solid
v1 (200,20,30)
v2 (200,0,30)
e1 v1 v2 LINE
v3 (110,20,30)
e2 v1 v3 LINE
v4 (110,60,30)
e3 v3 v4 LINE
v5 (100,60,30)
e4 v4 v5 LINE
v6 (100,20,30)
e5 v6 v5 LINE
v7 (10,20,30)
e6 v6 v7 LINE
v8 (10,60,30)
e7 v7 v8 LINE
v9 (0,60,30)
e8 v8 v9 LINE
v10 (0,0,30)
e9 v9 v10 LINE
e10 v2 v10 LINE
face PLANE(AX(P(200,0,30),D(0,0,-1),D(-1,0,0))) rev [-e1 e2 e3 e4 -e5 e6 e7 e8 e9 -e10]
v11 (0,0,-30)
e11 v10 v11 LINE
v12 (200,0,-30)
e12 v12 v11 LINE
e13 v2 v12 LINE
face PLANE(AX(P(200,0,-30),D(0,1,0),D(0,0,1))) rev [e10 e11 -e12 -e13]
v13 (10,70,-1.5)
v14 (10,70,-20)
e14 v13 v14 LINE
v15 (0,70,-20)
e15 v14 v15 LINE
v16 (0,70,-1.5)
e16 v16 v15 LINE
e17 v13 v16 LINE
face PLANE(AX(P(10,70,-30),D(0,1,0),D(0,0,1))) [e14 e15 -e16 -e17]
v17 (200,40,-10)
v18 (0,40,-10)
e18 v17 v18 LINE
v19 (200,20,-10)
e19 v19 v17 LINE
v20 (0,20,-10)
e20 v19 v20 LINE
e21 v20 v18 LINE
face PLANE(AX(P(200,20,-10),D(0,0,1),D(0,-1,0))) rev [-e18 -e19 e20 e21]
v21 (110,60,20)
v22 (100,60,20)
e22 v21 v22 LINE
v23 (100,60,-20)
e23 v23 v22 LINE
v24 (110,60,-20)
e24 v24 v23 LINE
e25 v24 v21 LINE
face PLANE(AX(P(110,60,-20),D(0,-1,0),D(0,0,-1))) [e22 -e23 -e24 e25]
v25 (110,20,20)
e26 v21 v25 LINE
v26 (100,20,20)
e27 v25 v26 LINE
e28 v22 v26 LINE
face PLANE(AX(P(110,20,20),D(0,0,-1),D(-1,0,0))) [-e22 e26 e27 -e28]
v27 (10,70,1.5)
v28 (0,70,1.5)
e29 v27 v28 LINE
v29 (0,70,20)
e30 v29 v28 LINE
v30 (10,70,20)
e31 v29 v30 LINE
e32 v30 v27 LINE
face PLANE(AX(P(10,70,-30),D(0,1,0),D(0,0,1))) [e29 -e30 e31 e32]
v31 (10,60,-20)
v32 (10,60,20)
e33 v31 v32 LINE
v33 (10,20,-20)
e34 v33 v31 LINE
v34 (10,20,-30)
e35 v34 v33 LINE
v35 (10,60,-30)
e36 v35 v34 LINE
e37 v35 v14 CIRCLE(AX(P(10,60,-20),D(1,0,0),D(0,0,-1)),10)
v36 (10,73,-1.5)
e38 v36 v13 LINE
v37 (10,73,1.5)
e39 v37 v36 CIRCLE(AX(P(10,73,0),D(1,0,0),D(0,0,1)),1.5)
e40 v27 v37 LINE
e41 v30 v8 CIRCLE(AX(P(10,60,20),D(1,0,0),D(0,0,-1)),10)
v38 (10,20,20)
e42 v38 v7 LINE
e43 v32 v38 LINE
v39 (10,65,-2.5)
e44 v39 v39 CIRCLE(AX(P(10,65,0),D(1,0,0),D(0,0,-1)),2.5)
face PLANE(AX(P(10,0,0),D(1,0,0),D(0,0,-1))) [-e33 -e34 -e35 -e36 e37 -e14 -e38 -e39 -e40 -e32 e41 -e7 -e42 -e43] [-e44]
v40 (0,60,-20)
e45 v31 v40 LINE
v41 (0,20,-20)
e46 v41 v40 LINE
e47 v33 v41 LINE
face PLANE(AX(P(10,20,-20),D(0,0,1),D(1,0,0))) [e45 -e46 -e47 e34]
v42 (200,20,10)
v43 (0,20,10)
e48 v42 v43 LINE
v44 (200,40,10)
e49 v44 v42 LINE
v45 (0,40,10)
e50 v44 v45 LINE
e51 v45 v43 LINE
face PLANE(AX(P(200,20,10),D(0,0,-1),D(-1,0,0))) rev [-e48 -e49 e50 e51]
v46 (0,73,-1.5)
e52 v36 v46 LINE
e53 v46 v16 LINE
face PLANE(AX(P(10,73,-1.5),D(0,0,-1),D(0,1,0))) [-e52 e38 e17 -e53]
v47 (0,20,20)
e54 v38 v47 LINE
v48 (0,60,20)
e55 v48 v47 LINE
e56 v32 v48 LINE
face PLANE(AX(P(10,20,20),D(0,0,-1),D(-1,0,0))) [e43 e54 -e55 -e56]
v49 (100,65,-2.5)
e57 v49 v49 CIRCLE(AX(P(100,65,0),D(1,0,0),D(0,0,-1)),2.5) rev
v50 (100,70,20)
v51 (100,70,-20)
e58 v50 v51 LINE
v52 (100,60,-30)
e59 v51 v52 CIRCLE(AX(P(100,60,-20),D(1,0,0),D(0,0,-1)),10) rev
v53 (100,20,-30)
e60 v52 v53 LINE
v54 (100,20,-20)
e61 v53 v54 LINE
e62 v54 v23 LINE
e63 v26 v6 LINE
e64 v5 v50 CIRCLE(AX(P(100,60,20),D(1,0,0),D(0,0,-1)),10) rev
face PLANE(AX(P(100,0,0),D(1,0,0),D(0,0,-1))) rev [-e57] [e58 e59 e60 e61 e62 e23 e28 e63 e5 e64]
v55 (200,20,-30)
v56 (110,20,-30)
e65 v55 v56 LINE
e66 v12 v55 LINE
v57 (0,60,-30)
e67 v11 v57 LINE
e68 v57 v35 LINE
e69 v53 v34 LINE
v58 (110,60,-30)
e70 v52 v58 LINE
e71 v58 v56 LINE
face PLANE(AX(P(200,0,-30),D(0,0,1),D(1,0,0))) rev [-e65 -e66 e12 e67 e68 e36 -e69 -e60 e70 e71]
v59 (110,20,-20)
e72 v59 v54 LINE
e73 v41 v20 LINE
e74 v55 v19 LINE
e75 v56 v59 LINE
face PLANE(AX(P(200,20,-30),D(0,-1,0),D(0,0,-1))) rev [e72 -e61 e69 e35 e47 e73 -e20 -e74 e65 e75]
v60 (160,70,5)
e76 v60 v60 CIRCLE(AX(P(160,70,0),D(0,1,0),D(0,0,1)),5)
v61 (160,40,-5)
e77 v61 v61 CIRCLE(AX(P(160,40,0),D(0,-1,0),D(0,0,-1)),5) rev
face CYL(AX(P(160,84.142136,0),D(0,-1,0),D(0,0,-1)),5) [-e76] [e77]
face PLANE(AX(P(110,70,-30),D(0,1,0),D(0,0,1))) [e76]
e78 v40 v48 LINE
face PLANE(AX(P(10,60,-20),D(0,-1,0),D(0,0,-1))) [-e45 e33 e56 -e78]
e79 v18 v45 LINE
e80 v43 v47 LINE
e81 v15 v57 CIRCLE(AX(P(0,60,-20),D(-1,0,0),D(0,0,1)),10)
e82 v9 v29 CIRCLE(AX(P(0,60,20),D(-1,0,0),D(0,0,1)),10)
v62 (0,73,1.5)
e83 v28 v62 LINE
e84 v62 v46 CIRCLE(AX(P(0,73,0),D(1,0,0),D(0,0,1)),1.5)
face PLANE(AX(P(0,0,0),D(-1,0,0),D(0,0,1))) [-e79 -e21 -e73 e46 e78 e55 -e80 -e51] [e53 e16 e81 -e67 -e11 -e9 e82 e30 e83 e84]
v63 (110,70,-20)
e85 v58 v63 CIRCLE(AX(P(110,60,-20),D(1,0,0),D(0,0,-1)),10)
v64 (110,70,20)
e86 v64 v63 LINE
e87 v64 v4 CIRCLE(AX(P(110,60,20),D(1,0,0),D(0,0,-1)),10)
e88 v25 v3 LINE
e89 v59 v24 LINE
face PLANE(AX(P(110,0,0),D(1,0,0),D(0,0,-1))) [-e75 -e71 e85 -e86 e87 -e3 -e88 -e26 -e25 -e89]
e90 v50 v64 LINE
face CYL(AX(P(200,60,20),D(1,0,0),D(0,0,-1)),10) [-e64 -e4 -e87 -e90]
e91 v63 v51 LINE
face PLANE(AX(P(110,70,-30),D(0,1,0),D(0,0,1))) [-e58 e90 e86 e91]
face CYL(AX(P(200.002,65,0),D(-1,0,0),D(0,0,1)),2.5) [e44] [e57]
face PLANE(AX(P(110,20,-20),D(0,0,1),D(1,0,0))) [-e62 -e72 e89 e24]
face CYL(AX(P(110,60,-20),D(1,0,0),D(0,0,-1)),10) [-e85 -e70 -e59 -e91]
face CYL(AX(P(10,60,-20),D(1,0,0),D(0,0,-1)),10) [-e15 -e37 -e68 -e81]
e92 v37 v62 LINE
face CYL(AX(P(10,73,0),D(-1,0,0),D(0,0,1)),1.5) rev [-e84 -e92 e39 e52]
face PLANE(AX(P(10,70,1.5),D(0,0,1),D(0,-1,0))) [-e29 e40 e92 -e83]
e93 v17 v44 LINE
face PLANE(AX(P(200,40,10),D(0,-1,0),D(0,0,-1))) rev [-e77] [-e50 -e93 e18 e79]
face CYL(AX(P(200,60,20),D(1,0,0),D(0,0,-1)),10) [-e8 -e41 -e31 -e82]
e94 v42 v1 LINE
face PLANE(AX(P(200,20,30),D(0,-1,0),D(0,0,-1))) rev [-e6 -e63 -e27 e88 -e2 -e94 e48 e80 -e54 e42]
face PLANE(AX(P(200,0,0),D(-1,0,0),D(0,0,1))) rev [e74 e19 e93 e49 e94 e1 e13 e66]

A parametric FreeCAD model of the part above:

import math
import FreeCAD as App
import Part
import Sketcher
Q = App.Units.Quantity


def edges_at(feature, points):
    """Names of the edges that pass closest to the given points."""
    edges = feature.Shape.Edges
    near = lambda p: min(range(len(edges)), key=lambda i: edges[i].distToShape(Part.Vertex(*p))[0])
    return sorted({f"Edge{near(p) + 1}" for p in points})


def add_polygon(sketch, points):
    """Adds a closed chain of lines whose ends are joined by coincident constraints."""
    first, n = sketch.GeometryCount, len(points)
    for a, b in zip(points, points[1:] + points[:1]):
        sketch.addGeometry(Part.LineSegment(App.Vector(*a, 0), App.Vector(*b, 0)), False)
    for i in range(n):
        sketch.addConstraint(Sketcher.Constraint("Coincident", first + i, 2, first + (i + 1) % n, 1))

doc = App.newDocument("Part")
params = doc.addObject("Spreadsheet::Sheet", "Params")
for row, (alias, value) in enumerate([
    ("sketch1_width", "20 mm"),
    ("pad1_length", "200 mm"),
    ("sketch2_width", "40 mm"),
    ("sketch2_width2", "50 mm"),
    ("sketch2_height", "10 mm"),
    ("pad2_length", "10 mm"),
    ("sketch3_width", "50 mm"),
    ("sketch3_width2", "40 mm"),
    ("sketch3_height", "10 mm"),
    ("pad3_length", "10 mm"),
    ("fillet_radius", "10 mm"),
    ("sketch4_diameter", "5 mm"),
    ("sketch5_diameter", "10 mm"),
    ("pad5_length", "30 mm"),
    ("sketch6_radius", "1.5 mm"),
    ("pad6_length", "10 mm"),
], start=1):
    params.set(f"A{row}", alias)
    params.set(f"B{row}", "=" + value)
    params.setAlias(f"B{row}", alias)

body = doc.addObject("PartDesign::Body", "Body")

# Sketch on YZ plane
sketch1 = body.newObject("Sketcher::SketchObject", "Sketch")
sketch1.AttachmentSupport = (doc.getObject("YZ_Plane"), [""])
sketch1.MapMode = "FlatFace"
add_polygon(sketch1, [(0, 30), (0, -30), (20, -30), (20, -10), (40, -10), (40, 10), (20, 10), (20, 30)])  # lines 0-7
sketch1.addConstraint(Sketcher.Constraint("Vertical", 0))
sketch1.addConstraint(Sketcher.Constraint("Horizontal", 1))
sketch1.addConstraint(Sketcher.Constraint("Vertical", 2))
sketch1.addConstraint(Sketcher.Constraint("Horizontal", 3))
sketch1.addConstraint(Sketcher.Constraint("Vertical", 4))
sketch1.addConstraint(Sketcher.Constraint("Horizontal", 5))
sketch1.addConstraint(Sketcher.Constraint("Vertical", 6))
sketch1.addConstraint(Sketcher.Constraint("Horizontal", 7))
sketch1.addConstraint(Sketcher.Constraint("Symmetric", 0, 2, 7, 2, -1, 1))
sketch1.addConstraint(Sketcher.Constraint("Symmetric", 2, 2, 5, 2, -1))
sketch1.addConstraint(Sketcher.Constraint("Equal", 1, 3))
sketch1.addConstraint(Sketcher.Constraint("Equal", 7, 2))
sketch1.addConstraint(Sketcher.Constraint("Equal", 2, 4))
sketch1.addConstraint(Sketcher.Constraint("DistanceX", 1, 1, 1, 2, Q("20 mm")))
sketch1.setExpression("Constraints[21]", "Params.sketch1_width")
pad1 = body.newObject("PartDesign::Pad", "Pad")
pad1.Profile = sketch1
pad1.setExpression("Length", "Params.pad1_length")

# Sketch on YZ plane
sketch2 = body.newObject("Sketcher::SketchObject", "Sketch001")
sketch2.AttachmentSupport = (doc.getObject("YZ_Plane"), [""])
sketch2.MapMode = "FlatFace"
add_polygon(sketch2, [(20, -30), (20, -20), (60, -20), (60, 20), (20, 20), (20, 30), (70, 30), (70, -30)])  # lines 0-7
sketch2.addConstraint(Sketcher.Constraint("Vertical", 0))
sketch2.addConstraint(Sketcher.Constraint("Horizontal", 1))
sketch2.addConstraint(Sketcher.Constraint("Vertical", 2))
sketch2.addConstraint(Sketcher.Constraint("Horizontal", 3))
sketch2.addConstraint(Sketcher.Constraint("Vertical", 4))
sketch2.addConstraint(Sketcher.Constraint("Horizontal", 5))
sketch2.addConstraint(Sketcher.Constraint("Vertical", 6))
sketch2.addConstraint(Sketcher.Constraint("Horizontal", 7))
sketch2.addConstraint(Sketcher.Constraint("Symmetric", 0, 2, 3, 2, -1))
sketch2.addConstraint(Sketcher.Constraint("Equal", 3, 2))
sketch2.addConstraint(Sketcher.Constraint("Equal", 0, 4))
sketch2.addConstraint(Sketcher.Constraint("DistanceX", 1, 1, 1, 2, Q("40 mm")))
sketch2.addConstraint(Sketcher.Constraint("DistanceX", 5, 1, 5, 2, Q("50 mm")))
sketch2.addConstraint(Sketcher.Constraint("DistanceY", 0, 1, 0, 2, Q("10 mm")))
sketch2.addConstraint(Sketcher.Constraint("DistanceX", -1, 1, 0, 2, Q("20 mm")))
sketch2.setExpression("Constraints[19]", "Params.sketch2_width")
sketch2.setExpression("Constraints[20]", "Params.sketch2_width2")
sketch2.setExpression("Constraints[21]", "Params.sketch2_height")
pad2 = body.newObject("PartDesign::Pad", "Pad001")
pad2.Profile = sketch2
pad2.setExpression("Length", "Params.pad2_length")

# Sketch on YZ plane
sketch3 = body.newObject("Sketcher::SketchObject", "Sketch002")
sketch3.AttachmentSupport = (doc.getObject("YZ_Plane"), [""])
sketch3.MapMode = "FlatFace"
sketch3.AttachmentOffset = App.Placement(App.Vector(0, 0, 100), App.Rotation())
add_polygon(sketch3, [(20, 20), (20, 30), (70, 30), (70, -30), (20, -30), (20, -20), (60, -20), (60, 20)])  # lines 0-7
sketch3.addConstraint(Sketcher.Constraint("Vertical", 0))
sketch3.addConstraint(Sketcher.Constraint("Horizontal", 1))
sketch3.addConstraint(Sketcher.Constraint("Vertical", 2))
sketch3.addConstraint(Sketcher.Constraint("Horizontal", 3))
sketch3.addConstraint(Sketcher.Constraint("Vertical", 4))
sketch3.addConstraint(Sketcher.Constraint("Horizontal", 5))
sketch3.addConstraint(Sketcher.Constraint("Vertical", 6))
sketch3.addConstraint(Sketcher.Constraint("Horizontal", 7))
sketch3.addConstraint(Sketcher.Constraint("Symmetric", 0, 2, 3, 2, -1))
sketch3.addConstraint(Sketcher.Constraint("Equal", 0, 4))
sketch3.addConstraint(Sketcher.Constraint("Equal", 7, 6))
sketch3.addConstraint(Sketcher.Constraint("DistanceX", 1, 1, 1, 2, Q("50 mm")))
sketch3.addConstraint(Sketcher.Constraint("DistanceX", 5, 1, 5, 2, Q("40 mm")))
sketch3.addConstraint(Sketcher.Constraint("DistanceY", 0, 1, 0, 2, Q("10 mm")))
sketch3.addConstraint(Sketcher.Constraint("DistanceX", -1, 1, 0, 2, Q("20 mm")))
sketch3.setExpression("Constraints[19]", "Params.sketch3_width")
sketch3.setExpression("Constraints[20]", "Params.sketch3_width2")
sketch3.setExpression("Constraints[21]", "Params.sketch3_height")
pad3 = body.newObject("PartDesign::Pad", "Pad002")
pad3.Profile = sketch3
pad3.setExpression("Length", "Params.pad3_length")
doc.recompute()

fillet = body.newObject("PartDesign::Fillet", "Fillet")
fillet.Base = (pad3, edges_at(pad3, [
    (5, 70, -30),
    (5, 70, 30),
    (105, 70, -30),
    (105, 70, 30),
]))
fillet.setExpression("Radius", "Params.fillet_radius")

# Sketch on YZ plane
sketch4 = body.newObject("Sketcher::SketchObject", "Sketch003")
sketch4.AttachmentSupport = (doc.getObject("YZ_Plane"), [""])
sketch4.MapMode = "FlatFace"
sketch4.AttachmentOffset = App.Placement(App.Vector(0, 0, 10), App.Rotation())
sketch4.addGeometry(Part.Circle(App.Vector(65, 0, 0), App.Vector(0, 0, 1), 2.5), False)
sketch4.addConstraint(Sketcher.Constraint("PointOnObject", 0, 3, -1))
sketch4.addConstraint(Sketcher.Constraint("Diameter", 0, Q("5 mm")))
sketch4.addConstraint(Sketcher.Constraint("DistanceX", -1, 1, 0, 3, Q("65 mm")))
sketch4.setExpression("Constraints[1]", "Params.sketch4_diameter")
pad4 = body.newObject("PartDesign::Pad", "Pad003")
pad4.Profile = sketch4
pad4.Type = "UpToFirst"

# Sketch on XZ plane
sketch5 = body.newObject("Sketcher::SketchObject", "Sketch004")
sketch5.AttachmentSupport = (doc.getObject("XZ_Plane"), [""])
sketch5.MapMode = "FlatFace"
sketch5.AttachmentOffset = App.Placement(App.Vector(0, 0, -40), App.Rotation())
sketch5.addGeometry(Part.Circle(App.Vector(160, 0, 0), App.Vector(0, 0, 1), 5), False)
sketch5.addConstraint(Sketcher.Constraint("PointOnObject", 0, 3, -1))
sketch5.addConstraint(Sketcher.Constraint("Diameter", 0, Q("10 mm")))
sketch5.addConstraint(Sketcher.Constraint("DistanceX", -1, 1, 0, 3, Q("160 mm")))
sketch5.setExpression("Constraints[1]", "Params.sketch5_diameter")
pad5 = body.newObject("PartDesign::Pad", "Pad004")
pad5.Profile = sketch5
pad5.setExpression("Length", "Params.pad5_length")
pad5.Reversed = True

# Sketch on YZ plane
sketch6 = body.newObject("Sketcher::SketchObject", "Sketch005")
sketch6.AttachmentSupport = (doc.getObject("YZ_Plane"), [""])
sketch6.MapMode = "FlatFace"
sketch6.addGeometry(Part.LineSegment(App.Vector(73, -1.5, 0), App.Vector(70, -1.5, 0)), False)
sketch6.addGeometry(Part.LineSegment(App.Vector(70, -1.5, 0), App.Vector(70, 1.5, 0)), False)
sketch6.addGeometry(Part.LineSegment(App.Vector(70, 1.5, 0), App.Vector(73, 1.5, 0)), False)
sketch6.addGeometry(Part.ArcOfCircle(Part.Circle(App.Vector(73, 0, 0), App.Vector(0, 0, 1), 1.5), math.radians(90), math.radians(270)), False)
sketch6.addConstraint(Sketcher.Constraint("Coincident", 0, 2, 1, 1))
sketch6.addConstraint(Sketcher.Constraint("Coincident", 1, 2, 2, 1))
sketch6.addConstraint(Sketcher.Constraint("Tangent", 2, 2, 3, 1))
sketch6.addConstraint(Sketcher.Constraint("Tangent", 3, 2, 0, 1))
sketch6.addConstraint(Sketcher.Constraint("Horizontal", 0))
sketch6.addConstraint(Sketcher.Constraint("Vertical", 1))
sketch6.addConstraint(Sketcher.Constraint("Horizontal", 2))
sketch6.addConstraint(Sketcher.Constraint("PointOnObject", 3, 3, -1))
sketch6.addConstraint(Sketcher.Constraint("Equal", 2, 1))
sketch6.addConstraint(Sketcher.Constraint("Radius", 3, Q("1.5 mm")))
sketch6.addConstraint(Sketcher.Constraint("DistanceX", -1, 1, 3, 3, Q("73 mm")))
sketch6.setExpression("Constraints[9]", "Params.sketch6_radius")
pad6 = body.newObject("PartDesign::Pad", "Pad005")
pad6.Profile = sketch6
pad6.setExpression("Length", "Params.pad6_length")

doc.recompute()
